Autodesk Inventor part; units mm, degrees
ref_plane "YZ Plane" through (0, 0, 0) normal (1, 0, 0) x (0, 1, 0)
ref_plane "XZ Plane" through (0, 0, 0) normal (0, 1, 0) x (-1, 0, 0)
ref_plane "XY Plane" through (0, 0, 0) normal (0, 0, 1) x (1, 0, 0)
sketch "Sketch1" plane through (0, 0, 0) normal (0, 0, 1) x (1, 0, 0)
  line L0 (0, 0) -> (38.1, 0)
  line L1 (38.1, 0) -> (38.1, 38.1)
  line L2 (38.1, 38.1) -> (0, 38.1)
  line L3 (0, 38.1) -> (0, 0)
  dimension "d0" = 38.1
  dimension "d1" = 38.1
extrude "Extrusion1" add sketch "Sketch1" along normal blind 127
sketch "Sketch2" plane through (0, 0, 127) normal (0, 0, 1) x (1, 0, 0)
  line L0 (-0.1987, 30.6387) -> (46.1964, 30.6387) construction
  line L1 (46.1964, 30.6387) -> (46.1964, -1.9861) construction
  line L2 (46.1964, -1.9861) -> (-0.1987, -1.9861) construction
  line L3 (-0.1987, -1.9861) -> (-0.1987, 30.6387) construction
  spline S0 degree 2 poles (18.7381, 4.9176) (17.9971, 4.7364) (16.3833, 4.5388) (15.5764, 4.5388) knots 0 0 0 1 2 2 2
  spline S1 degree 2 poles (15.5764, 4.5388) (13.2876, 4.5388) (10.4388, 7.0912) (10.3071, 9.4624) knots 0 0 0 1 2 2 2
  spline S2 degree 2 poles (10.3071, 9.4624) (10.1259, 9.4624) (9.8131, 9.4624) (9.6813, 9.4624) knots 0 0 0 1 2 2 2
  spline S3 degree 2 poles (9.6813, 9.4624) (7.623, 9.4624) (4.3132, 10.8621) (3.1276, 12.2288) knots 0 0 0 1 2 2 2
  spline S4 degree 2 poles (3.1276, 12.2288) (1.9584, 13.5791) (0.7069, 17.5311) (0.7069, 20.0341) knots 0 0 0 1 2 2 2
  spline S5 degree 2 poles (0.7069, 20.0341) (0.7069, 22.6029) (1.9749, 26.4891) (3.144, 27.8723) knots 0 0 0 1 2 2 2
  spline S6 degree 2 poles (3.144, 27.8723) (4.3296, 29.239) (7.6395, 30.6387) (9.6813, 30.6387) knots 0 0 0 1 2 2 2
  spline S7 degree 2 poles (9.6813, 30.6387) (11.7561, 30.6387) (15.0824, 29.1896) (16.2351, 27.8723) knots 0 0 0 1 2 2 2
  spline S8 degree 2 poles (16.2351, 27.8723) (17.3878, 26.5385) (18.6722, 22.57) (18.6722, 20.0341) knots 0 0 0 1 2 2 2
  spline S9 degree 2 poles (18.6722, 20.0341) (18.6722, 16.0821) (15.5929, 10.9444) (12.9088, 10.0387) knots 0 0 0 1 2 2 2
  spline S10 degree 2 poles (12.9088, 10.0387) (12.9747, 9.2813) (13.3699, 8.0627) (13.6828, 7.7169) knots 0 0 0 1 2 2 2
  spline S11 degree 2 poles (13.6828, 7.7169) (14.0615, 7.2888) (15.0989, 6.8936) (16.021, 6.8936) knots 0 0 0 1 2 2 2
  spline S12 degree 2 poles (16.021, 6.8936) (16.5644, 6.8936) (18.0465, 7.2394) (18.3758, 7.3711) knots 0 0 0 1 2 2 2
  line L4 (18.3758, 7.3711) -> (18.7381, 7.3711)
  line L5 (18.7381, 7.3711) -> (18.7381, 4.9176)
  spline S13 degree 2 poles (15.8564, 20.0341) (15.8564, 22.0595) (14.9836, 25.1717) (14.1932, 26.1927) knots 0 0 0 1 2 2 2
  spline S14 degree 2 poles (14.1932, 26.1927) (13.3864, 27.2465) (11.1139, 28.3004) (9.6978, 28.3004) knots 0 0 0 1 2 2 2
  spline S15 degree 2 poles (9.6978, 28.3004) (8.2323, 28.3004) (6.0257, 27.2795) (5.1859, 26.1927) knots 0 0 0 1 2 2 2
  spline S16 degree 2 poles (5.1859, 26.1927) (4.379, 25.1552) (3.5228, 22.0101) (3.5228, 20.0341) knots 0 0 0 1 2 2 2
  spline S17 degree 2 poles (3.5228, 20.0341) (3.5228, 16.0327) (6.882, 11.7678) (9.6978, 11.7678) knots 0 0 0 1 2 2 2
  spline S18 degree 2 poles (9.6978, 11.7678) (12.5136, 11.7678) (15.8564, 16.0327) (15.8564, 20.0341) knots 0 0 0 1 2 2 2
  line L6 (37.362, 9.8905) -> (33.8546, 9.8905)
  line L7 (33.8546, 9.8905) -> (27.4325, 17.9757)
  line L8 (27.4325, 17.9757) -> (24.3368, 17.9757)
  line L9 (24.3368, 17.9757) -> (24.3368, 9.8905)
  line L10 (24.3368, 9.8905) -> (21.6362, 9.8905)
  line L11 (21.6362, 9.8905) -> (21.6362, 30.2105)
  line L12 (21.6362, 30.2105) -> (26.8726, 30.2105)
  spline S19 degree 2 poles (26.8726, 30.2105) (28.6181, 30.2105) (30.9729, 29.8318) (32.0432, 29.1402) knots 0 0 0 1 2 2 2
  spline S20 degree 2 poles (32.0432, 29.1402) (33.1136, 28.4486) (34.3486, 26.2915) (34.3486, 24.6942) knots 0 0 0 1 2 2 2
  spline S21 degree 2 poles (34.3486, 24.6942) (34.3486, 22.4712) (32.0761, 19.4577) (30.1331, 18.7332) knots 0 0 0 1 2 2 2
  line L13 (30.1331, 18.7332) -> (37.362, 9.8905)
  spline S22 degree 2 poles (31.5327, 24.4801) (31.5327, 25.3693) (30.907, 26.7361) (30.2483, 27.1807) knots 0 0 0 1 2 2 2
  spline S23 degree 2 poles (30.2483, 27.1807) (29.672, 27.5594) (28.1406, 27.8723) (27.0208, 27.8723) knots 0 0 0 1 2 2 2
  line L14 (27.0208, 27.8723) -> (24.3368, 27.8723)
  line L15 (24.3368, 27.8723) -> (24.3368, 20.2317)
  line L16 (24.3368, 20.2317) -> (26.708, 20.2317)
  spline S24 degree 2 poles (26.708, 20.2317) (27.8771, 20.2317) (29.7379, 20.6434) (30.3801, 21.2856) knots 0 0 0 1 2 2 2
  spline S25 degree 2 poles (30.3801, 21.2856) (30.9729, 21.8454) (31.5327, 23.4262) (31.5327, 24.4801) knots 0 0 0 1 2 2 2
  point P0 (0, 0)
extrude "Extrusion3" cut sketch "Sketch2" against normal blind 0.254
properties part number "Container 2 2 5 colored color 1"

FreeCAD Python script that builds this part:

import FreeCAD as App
import Part
import Sketcher
Q = App.Units.Quantity


def add_polygon(sketch, points):
    """Adds a closed chain of lines whose ends are joined by coincident constraints."""
    first, n = sketch.GeometryCount, len(points)
    for a, b in zip(points, points[1:] + points[:1]):
        sketch.addGeometry(Part.LineSegment(App.Vector(*a, 0), App.Vector(*b, 0)), False)
    for i in range(n):
        sketch.addConstraint(Sketcher.Constraint("Coincident", first + i, 2, first + (i + 1) % n, 1))

doc = App.newDocument("Part")
body = doc.addObject("PartDesign::Body", "Body")

# Sketch on XY plane
sketch1 = body.newObject("Sketcher::SketchObject", "Sketch")
sketch1.AttachmentSupport = (doc.getObject("XY_Plane"), [""])
sketch1.MapMode = "FlatFace"
add_polygon(sketch1, [(0, 38), (0, 0), (38, 0), (38, 38)])  # lines 0-3
sketch1.addConstraint([
    Sketcher.Constraint("Vertical", 0),
    Sketcher.Constraint("Horizontal", 1),
    Sketcher.Constraint("Vertical", 2),
    Sketcher.Constraint("Horizontal", 3),
    Sketcher.Constraint("Coincident", 0, 2, -1, 1),
    Sketcher.Constraint("Equal", 3, 0),
    Sketcher.Constraint("DistanceX", 1, 1, 1, 2, Q("1.5 in")),
])
pad1 = body.newObject("PartDesign::Pad", "Pad")
pad1.Profile = sketch1
pad1.Length = Q("5 in")

# Sketch on XY plane
sketch2 = body.newObject("Sketcher::SketchObject", "Sketch001")
sketch2.AttachmentSupport = (doc.getObject("XY_Plane"), [""])
sketch2.MapMode = "FlatFace"
sketch2.AttachmentOffset = App.Placement(App.Vector(0, 0, 5 * 25.4), App.Rotation())
sketch2.addGeometry([
    Part.BSplineCurve([App.Vector(18.7381, 4.9176, 0), App.Vector(17.9971, 4.7364, 0), App.Vector(16.3833, 4.5388, 0), App.Vector(15.5764, 4.5388, 0)], [3, 1, 3], [0, 1, 2], False, 2, [1, 1, 1, 1], False),  # 0
    Part.LineSegment(App.Vector(18.7381, 4.9176, 0), App.Vector(18.7381, 7.3711, 0)),  # 1
    Part.LineSegment(App.Vector(18.7381, 7.3711, 0), App.Vector(18.3758, 7.3711, 0)),  # 2
    Part.BSplineCurve([App.Vector(16.021, 6.8936, 0), App.Vector(16.5644, 6.8936, 0), App.Vector(18.0465, 7.2394, 0), App.Vector(18.3758, 7.3711, 0)], [3, 1, 3], [0, 1, 2], False, 2, [1, 1, 1, 1], False),  # 3
    Part.BSplineCurve([App.Vector(13.6828, 7.7169, 0), App.Vector(14.0615, 7.2888, 0), App.Vector(15.0989, 6.8936, 0), App.Vector(16.021, 6.8936, 0)], [3, 1, 3], [0, 1, 2], False, 2, [1, 1, 1, 1], False),  # 4
    Part.BSplineCurve([App.Vector(12.9088, 10.0387, 0), App.Vector(12.9747, 9.2813, 0), App.Vector(13.3699, 8.0627, 0), App.Vector(13.6828, 7.7169, 0)], [3, 1, 3], [0, 1, 2], False, 2, [1, 1, 1, 1], False),  # 5
    Part.BSplineCurve([App.Vector(18.6722, 20.0341, 0), App.Vector(18.6722, 16.0821, 0), App.Vector(15.5929, 10.9444, 0), App.Vector(12.9088, 10.0387, 0)], [3, 1, 3], [0, 1, 2], False, 2, [1, 1, 1, 1], False),  # 6
    Part.BSplineCurve([App.Vector(16.2351, 27.8723, 0), App.Vector(17.3878, 26.5385, 0), App.Vector(18.6722, 22.57, 0), App.Vector(18.6722, 20.0341, 0)], [3, 1, 3], [0, 1, 2], False, 2, [1, 1, 1, 1], False),  # 7
    Part.BSplineCurve([App.Vector(9.6813, 30.6387, 0), App.Vector(11.7561, 30.6387, 0), App.Vector(15.0824, 29.1896, 0), App.Vector(16.2351, 27.8723, 0)], [3, 1, 3], [0, 1, 2], False, 2, [1, 1, 1, 1], False),  # 8
    Part.BSplineCurve([App.Vector(3.144, 27.8723, 0), App.Vector(4.3296, 29.239, 0), App.Vector(7.6395, 30.6387, 0), App.Vector(9.6813, 30.6387, 0)], [3, 1, 3], [0, 1, 2], False, 2, [1, 1, 1, 1], False),  # 9
    Part.BSplineCurve([App.Vector(0.7069, 20.0341, 0), App.Vector(0.7069, 22.6029, 0), App.Vector(1.9749, 26.4891, 0), App.Vector(3.144, 27.8723, 0)], [3, 1, 3], [0, 1, 2], False, 2, [1, 1, 1, 1], False),  # 10
    Part.BSplineCurve([App.Vector(3.1276, 12.2288, 0), App.Vector(1.9584, 13.5791, 0), App.Vector(0.7069, 17.5311, 0), App.Vector(0.7069, 20.0341, 0)], [3, 1, 3], [0, 1, 2], False, 2, [1, 1, 1, 1], False),  # 11
    Part.BSplineCurve([App.Vector(9.6813, 9.4624, 0), App.Vector(7.623, 9.4624, 0), App.Vector(4.3132, 10.8621, 0), App.Vector(3.1276, 12.2288, 0)], [3, 1, 3], [0, 1, 2], False, 2, [1, 1, 1, 1], False),  # 12
    Part.BSplineCurve([App.Vector(10.3071, 9.4624, 0), App.Vector(10.1259, 9.4624, 0), App.Vector(9.8131, 9.4624, 0), App.Vector(9.6813, 9.4624, 0)], [3, 1, 3], [0, 1, 2], False, 2, [1, 1, 1, 1], False),  # 13
    Part.BSplineCurve([App.Vector(15.5764, 4.5388, 0), App.Vector(13.2876, 4.5388, 0), App.Vector(10.4388, 7.0912, 0), App.Vector(10.3071, 9.4624, 0)], [3, 1, 3], [0, 1, 2], False, 2, [1, 1, 1, 1], False),  # 14
    Part.BSplineCurve([App.Vector(15.8564, 20.0341, 0), App.Vector(15.8564, 22.0595, 0), App.Vector(14.9836, 25.1717, 0), App.Vector(14.1932, 26.1927, 0)], [3, 1, 3], [0, 1, 2], False, 2, [1, 1, 1, 1], False),  # 15
    Part.BSplineCurve([App.Vector(9.6978, 11.7678, 0), App.Vector(12.5136, 11.7678, 0), App.Vector(15.8564, 16.0327, 0), App.Vector(15.8564, 20.0341, 0)], [3, 1, 3], [0, 1, 2], False, 2, [1, 1, 1, 1], False),  # 16
    Part.BSplineCurve([App.Vector(3.5228, 20.0341, 0), App.Vector(3.5228, 16.0327, 0), App.Vector(6.882, 11.7678, 0), App.Vector(9.6978, 11.7678, 0)], [3, 1, 3], [0, 1, 2], False, 2, [1, 1, 1, 1], False),  # 17
    Part.BSplineCurve([App.Vector(5.1859, 26.1927, 0), App.Vector(4.379, 25.1552, 0), App.Vector(3.5228, 22.0101, 0), App.Vector(3.5228, 20.0341, 0)], [3, 1, 3], [0, 1, 2], False, 2, [1, 1, 1, 1], False),  # 18
    Part.BSplineCurve([App.Vector(9.6978, 28.3004, 0), App.Vector(8.2323, 28.3004, 0), App.Vector(6.0257, 27.2795, 0), App.Vector(5.1859, 26.1927, 0)], [3, 1, 3], [0, 1, 2], False, 2, [1, 1, 1, 1], False),  # 19
    Part.BSplineCurve([App.Vector(14.1932, 26.1927, 0), App.Vector(13.3864, 27.2465, 0), App.Vector(11.1139, 28.3004, 0), App.Vector(9.6978, 28.3004, 0)], [3, 1, 3], [0, 1, 2], False, 2, [1, 1, 1, 1], False),  # 20
    Part.LineSegment(App.Vector(33.8546, 9.8905, 0), App.Vector(37.362, 9.8905, 0)),  # 21
    Part.LineSegment(App.Vector(37.362, 9.8905, 0), App.Vector(30.1331, 18.7332, 0)),  # 22
    Part.BSplineCurve([App.Vector(34.3486, 24.6942, 0), App.Vector(34.3486, 22.4712, 0), App.Vector(32.0761, 19.4577, 0), App.Vector(30.1331, 18.7332, 0)], [3, 1, 3], [0, 1, 2], False, 2, [1, 1, 1, 1], False),  # 23
    Part.BSplineCurve([App.Vector(32.0432, 29.1402, 0), App.Vector(33.1136, 28.4486, 0), App.Vector(34.3486, 26.2915, 0), App.Vector(34.3486, 24.6942, 0)], [3, 1, 3], [0, 1, 2], False, 2, [1, 1, 1, 1], False),  # 24
    Part.BSplineCurve([App.Vector(26.8726, 30.2105, 0), App.Vector(28.6181, 30.2105, 0), App.Vector(30.9729, 29.8318, 0), App.Vector(32.0432, 29.1402, 0)], [3, 1, 3], [0, 1, 2], False, 2, [1, 1, 1, 1], False),  # 25
    Part.LineSegment(App.Vector(26.8726, 30.2105, 0), App.Vector(21.6362, 30.2105, 0)),  # 26
    Part.LineSegment(App.Vector(21.6362, 30.2105, 0), App.Vector(21.6362, 9.8905, 0)),  # 27
    Part.LineSegment(App.Vector(21.6362, 9.8905, 0), App.Vector(24.3368, 9.8905, 0)),  # 28
    Part.LineSegment(App.Vector(24.3368, 9.8905, 0), App.Vector(24.3368, 17.9757, 0)),  # 29
    Part.LineSegment(App.Vector(24.3368, 17.9757, 0), App.Vector(27.4325, 17.9757, 0)),  # 30
    Part.LineSegment(App.Vector(27.4325, 17.9757, 0), App.Vector(33.8546, 9.8905, 0)),  # 31
    Part.BSplineCurve([App.Vector(31.5327, 24.4801, 0), App.Vector(31.5327, 25.3693, 0), App.Vector(30.907, 26.7361, 0), App.Vector(30.2483, 27.1807, 0)], [3, 1, 3], [0, 1, 2], False, 2, [1, 1, 1, 1], False),  # 32
    Part.BSplineCurve([App.Vector(30.3801, 21.2856, 0), App.Vector(30.9729, 21.8454, 0), App.Vector(31.5327, 23.4262, 0), App.Vector(31.5327, 24.4801, 0)], [3, 1, 3], [0, 1, 2], False, 2, [1, 1, 1, 1], False),  # 33
    Part.BSplineCurve([App.Vector(26.708, 20.2317, 0), App.Vector(27.8771, 20.2317, 0), App.Vector(29.7379, 20.6434, 0), App.Vector(30.3801, 21.2856, 0)], [3, 1, 3], [0, 1, 2], False, 2, [1, 1, 1, 1], False),  # 34
    Part.LineSegment(App.Vector(26.708, 20.2317, 0), App.Vector(24.3368, 20.2317, 0)),  # 35
    Part.LineSegment(App.Vector(24.3368, 20.2317, 0), App.Vector(24.3368, 27.8723, 0)),  # 36
    Part.LineSegment(App.Vector(24.3368, 27.8723, 0), App.Vector(27.0208, 27.8723, 0)),  # 37
    Part.BSplineCurve([App.Vector(30.2483, 27.1807, 0), App.Vector(29.672, 27.5594, 0), App.Vector(28.1406, 27.8723, 0), App.Vector(27.0208, 27.8723, 0)], [3, 1, 3], [0, 1, 2], False, 2, [1, 1, 1, 1], False),  # 38
], False)
sketch2.addConstraint([
    Sketcher.Constraint("Block", 0),
    Sketcher.Constraint("Block", 3),
    Sketcher.Constraint("Block", 4),
    Sketcher.Constraint("Block", 5),
    Sketcher.Constraint("Block", 6),
    Sketcher.Constraint("Block", 7),
    Sketcher.Constraint("Block", 8),
    Sketcher.Constraint("Block", 9),
    Sketcher.Constraint("Block", 10),
    Sketcher.Constraint("Block", 11),
    Sketcher.Constraint("Block", 12),
    Sketcher.Constraint("Block", 13),
    Sketcher.Constraint("Block", 14),
    Sketcher.Constraint("Block", 15),
    Sketcher.Constraint("Block", 16),
    Sketcher.Constraint("Block", 17),
    Sketcher.Constraint("Block", 18),
    Sketcher.Constraint("Block", 19),
    Sketcher.Constraint("Block", 20),
    Sketcher.Constraint("Block", 23),
    Sketcher.Constraint("Block", 24),
    Sketcher.Constraint("Block", 25),
    Sketcher.Constraint("Block", 32),
    Sketcher.Constraint("Block", 33),
    Sketcher.Constraint("Block", 34),
    Sketcher.Constraint("Block", 38),
    Sketcher.Constraint("Coincident", 0, 1, 1, 1),
    Sketcher.Constraint("Coincident", 1, 2, 2, 1),
    Sketcher.Constraint("Coincident", 2, 2, 3, 2),
    Sketcher.Constraint("Coincident", 21, 2, 22, 1),
    Sketcher.Constraint("Coincident", 22, 2, 23, 2),
    Sketcher.Constraint("Coincident", 25, 1, 26, 1),
    Sketcher.Constraint("Coincident", 26, 2, 27, 1),
    Sketcher.Constraint("Coincident", 27, 2, 28, 1),
    Sketcher.Constraint("Coincident", 28, 2, 29, 1),
    Sketcher.Constraint("Coincident", 29, 2, 30, 1),
    Sketcher.Constraint("Coincident", 30, 2, 31, 1),
    Sketcher.Constraint("Coincident", 31, 2, 21, 1),
    Sketcher.Constraint("Coincident", 34, 1, 35, 1),
    Sketcher.Constraint("Coincident", 35, 2, 36, 1),
    Sketcher.Constraint("Coincident", 36, 2, 37, 1),
    Sketcher.Constraint("Coincident", 37, 2, 38, 2),
    Sketcher.Constraint("Vertical", 1),
    Sketcher.Constraint("Horizontal", 2),
    Sketcher.Constraint("Horizontal", 21),
    Sketcher.Constraint("Horizontal", 26),
    Sketcher.Constraint("Vertical", 27),
    Sketcher.Constraint("Horizontal", 28),
    Sketcher.Constraint("Vertical", 29),
    Sketcher.Constraint("Horizontal", 30),
    Sketcher.Constraint("Horizontal", 35),
    Sketcher.Constraint("Vertical", 36),
    Sketcher.Constraint("Horizontal", 37),
    Sketcher.Constraint("Horizontal", 21, 2, 27, 2),
    Sketcher.Constraint("Vertical", 29, 2, 35, 2),
    Sketcher.Constraint("DistanceY", 27, 2, 27, 1, Q("0.8 in")),
    Sketcher.Constraint("Angle", 31, Q("-51.5398 deg")),
    Sketcher.Constraint("DistanceX", 26, 2, 37, 2, Q("0.212 in")),
    Sketcher.Constraint("Distance", 31, Q("0.4065 in")),
    Sketcher.Constraint("DistanceX", 21, 1, 21, 2, 3.5074),
    Sketcher.Constraint("DistanceX", 28, 1, 28, 2, 2.7006),
    Sketcher.Constraint("DistanceX", 30, 1, 30, 2, 3.0957),
])
pocket1 = body.newObject("PartDesign::Pocket", "Pocket")
pocket1.Profile = sketch2
pocket1.Length = Q("0.01 in")

doc.recompute()
